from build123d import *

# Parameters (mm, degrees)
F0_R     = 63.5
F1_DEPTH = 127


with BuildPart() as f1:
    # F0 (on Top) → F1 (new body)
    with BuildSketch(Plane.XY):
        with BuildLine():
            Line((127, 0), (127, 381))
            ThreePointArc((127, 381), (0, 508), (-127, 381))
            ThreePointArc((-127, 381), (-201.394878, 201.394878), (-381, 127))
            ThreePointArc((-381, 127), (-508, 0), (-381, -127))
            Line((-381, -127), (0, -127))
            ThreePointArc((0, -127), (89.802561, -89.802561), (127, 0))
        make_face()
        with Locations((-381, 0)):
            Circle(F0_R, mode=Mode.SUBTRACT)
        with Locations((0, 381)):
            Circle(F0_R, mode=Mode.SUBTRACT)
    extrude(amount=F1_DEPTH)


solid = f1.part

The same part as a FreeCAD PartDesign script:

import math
import FreeCAD as App
import Part
import Sketcher

V = App.Vector
Q = App.Units.Quantity

doc = App.newDocument("Part")
body = doc.addObject("PartDesign::Body", "Body")

# Sketch on XY plane
sketch1 = body.newObject("Sketcher::SketchObject", "Sketch")
sketch1.AttachmentSupport = (doc.getObject("XY_Plane"), [""])
sketch1.MapMode = "FlatFace"
sketch1.addGeometry([
    Part.LineSegment(V(127, 0, 0), V(127, 381, 0)),  # 0
    Part.ArcOfCircle(Part.Circle(V(0, 381, 0), V(0, 0, 1), 127), math.radians(0), math.radians(180)),  # 1
    Part.ArcOfCircle(Part.Circle(V(-381, 381, 0), V(0, 0, 1), 254), math.radians(-90), math.radians(0)),  # 2
    Part.ArcOfCircle(Part.Circle(V(-381, 0, 0), V(0, 0, 1), 127), math.radians(90), math.radians(270)),  # 3
    Part.LineSegment(V(-381, -127, 0), V(0, -127, 0)),  # 4
    Part.ArcOfCircle(Part.Circle(V(0, 0, 0), V(0, 0, 1), 127), math.radians(-90), math.radians(0)),  # 5
    Part.Circle(V(-381, 0, 0), V(0, 0, 1), 64),  # 6
    Part.Circle(V(0, 381, 0), V(0, 0, 1), 64),  # 7
], False)
sketch1.addConstraint([
    Sketcher.Constraint("Tangent", 0, 2, 1, 1),
    Sketcher.Constraint("Tangent", 1, 2, 2, 2),
    Sketcher.Constraint("Tangent", 2, 1, 3, 1),
    Sketcher.Constraint("Tangent", 3, 2, 4, 1),
    Sketcher.Constraint("Tangent", 4, 2, 5, 1),
    Sketcher.Constraint("Tangent", 5, 2, 0, 1),
    Sketcher.Constraint("Vertical", 0),
    Sketcher.Constraint("Horizontal", 4),
    Sketcher.Constraint("Coincident", 5, 3, -1, 1),
    Sketcher.Constraint("Coincident", 6, 3, 3, 3),
    Sketcher.Constraint("Coincident", 7, 3, 1, 3),
    Sketcher.Constraint("Equal", 1, 3),
    Sketcher.Constraint("Equal", 3, 5),
    Sketcher.Constraint("Equal", 6, 7),
    Sketcher.Constraint("Horizontal", 1, 3, 2, 3),
    Sketcher.Constraint("Vertical", 2, 3, 3, 3),
    Sketcher.Constraint("Diameter", 6, Q("5 in")),
    Sketcher.Constraint("Radius", 1, Q("5 in")),
    Sketcher.Constraint("Radius", 2, Q("10.0000001 in")),
])
pad1 = body.newObject("PartDesign::Pad", "Pad")
pad1.Profile = sketch1
pad1.Length = Q("5 in")

doc.recompute()
